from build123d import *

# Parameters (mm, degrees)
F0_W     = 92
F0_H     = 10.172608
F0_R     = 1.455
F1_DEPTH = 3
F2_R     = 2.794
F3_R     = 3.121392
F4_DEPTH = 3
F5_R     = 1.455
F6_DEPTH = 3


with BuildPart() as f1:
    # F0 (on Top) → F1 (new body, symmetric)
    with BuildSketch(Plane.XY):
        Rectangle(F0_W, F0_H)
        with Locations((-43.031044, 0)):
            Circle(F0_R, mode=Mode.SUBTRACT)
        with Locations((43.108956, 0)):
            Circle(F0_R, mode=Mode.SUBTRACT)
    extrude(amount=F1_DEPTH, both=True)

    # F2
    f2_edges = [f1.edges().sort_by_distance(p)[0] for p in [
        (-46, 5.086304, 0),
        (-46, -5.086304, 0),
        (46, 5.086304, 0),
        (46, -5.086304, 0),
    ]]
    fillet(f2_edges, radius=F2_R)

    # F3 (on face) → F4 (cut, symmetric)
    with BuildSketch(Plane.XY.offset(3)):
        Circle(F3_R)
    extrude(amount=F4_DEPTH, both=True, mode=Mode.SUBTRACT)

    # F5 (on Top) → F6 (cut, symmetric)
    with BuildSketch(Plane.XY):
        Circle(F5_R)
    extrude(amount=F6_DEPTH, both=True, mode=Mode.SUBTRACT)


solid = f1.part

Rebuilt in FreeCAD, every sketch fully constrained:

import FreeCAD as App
import Part
import Sketcher
Q = App.Units.Quantity


def edges_at(feature, points):
    """Names of the edges that pass closest to the given points."""
    edges = feature.Shape.Edges
    near = lambda p: min(range(len(edges)), key=lambda i: edges[i].distToShape(Part.Vertex(*p))[0])
    return sorted({f"Edge{near(p) + 1}" for p in points})

doc = App.newDocument("Part")
params = doc.addObject("Spreadsheet::Sheet", "Params")
for row, (alias, value) in enumerate([
    ("sketch1_diameter", "2.91 mm"),
    ("sketch1_width", "92 mm"),
    ("pad1_length", "6 mm"),
    ("fillet_radius", "2.794 mm"),
    ("pocket1_length", "6 mm"),
    ("sketch3_diameter", "2.91 mm"),
    ("pocket2_length", "6 mm"),
], start=1):
    params.set(f"A{row}", alias)
    params.set(f"B{row}", "=" + value)
    params.setAlias(f"B{row}", alias)

body = doc.addObject("PartDesign::Body", "Body")

# Sketch on XY plane
sketch1 = body.newObject("Sketcher::SketchObject", "Sketch")
sketch1.AttachmentSupport = (doc.getObject("XY_Plane"), [""])
sketch1.MapMode = "FlatFace"
sketch1.addGeometry([
    Part.LineSegment(App.Vector(-46, 5.1, 0), App.Vector(-46, -5.1, 0)),  # 0
    Part.LineSegment(App.Vector(-46, -5.1, 0), App.Vector(46, -5.1, 0)),  # 1
    Part.LineSegment(App.Vector(46, -5.1, 0), App.Vector(46, 5.1, 0)),  # 2
    Part.LineSegment(App.Vector(46, 5.1, 0), App.Vector(-46, 5.1, 0)),  # 3
    Part.Circle(App.Vector(-43, 0, 0), App.Vector(0, 0, 1), 1.5),  # 4
    Part.Circle(App.Vector(43.1, 0, 0), App.Vector(0, 0, 1), 1.5),  # 5
], False)
sketch1.addConstraint([
    Sketcher.Constraint("Coincident", 0, 2, 1, 1),
    Sketcher.Constraint("Coincident", 1, 2, 2, 1),
    Sketcher.Constraint("Coincident", 2, 2, 3, 1),
    Sketcher.Constraint("Coincident", 3, 2, 0, 1),
    Sketcher.Constraint("Vertical", 0),
    Sketcher.Constraint("Horizontal", 1),
    Sketcher.Constraint("Vertical", 2),
    Sketcher.Constraint("Horizontal", 3),
    Sketcher.Constraint("Equal", 4, 5),
    Sketcher.Constraint("Symmetric", 0, 2, 2, 2, -1, 1),
    Sketcher.Constraint("PointOnObject", 4, 3, -1),
    Sketcher.Constraint("PointOnObject", 5, 3, -1),
    Sketcher.Constraint("Diameter", 4, Q("2.91 mm")),
    Sketcher.Constraint("DistanceX", 1, 1, 1, 2, Q("92 mm")),
    Sketcher.Constraint("DistanceX", 4, 3, 5, 3, Q("86.14 mm")),
    Sketcher.Constraint("DistanceY", 0, 2, 0, 1, Q("10.172608 mm")),
    Sketcher.Constraint("DistanceX", 4, 3, -1, 1, Q("43.031044 mm")),
])
sketch1.setExpression("Constraints[12]", "Params.sketch1_diameter")
sketch1.setExpression("Constraints[13]", "Params.sketch1_width")
pad1 = body.newObject("PartDesign::Pad", "Pad")
pad1.Profile = sketch1
pad1.setExpression("Length", "Params.pad1_length")
pad1.Midplane = True
doc.recompute()

fillet = body.newObject("PartDesign::Fillet", "Fillet")
fillet.Base = (pad1, edges_at(pad1, [
    (-46, 5.086, 0),
    (-46, -5.086, 0),
    (46, 5.086, 0),
    (46, -5.086, 0),
]))
fillet.setExpression("Radius", "Params.fillet_radius")

# Sketch on XY plane
sketch2 = body.newObject("Sketcher::SketchObject", "Sketch001")
sketch2.AttachmentSupport = (doc.getObject("XY_Plane"), [""])
sketch2.MapMode = "FlatFace"
sketch2.AttachmentOffset = App.Placement(App.Vector(0, 0, 3), App.Rotation())
sketch2.addGeometry(Part.Circle(App.Vector(0, 0, 0), App.Vector(0, 0, 1), 3.1), False)
sketch2.addConstraint([
    Sketcher.Constraint("Coincident", 0, 3, -1, 1),
    Sketcher.Constraint("Diameter", 0, Q("6.242784 mm")),
])
pocket1 = body.newObject("PartDesign::Pocket", "Pocket")
pocket1.Profile = sketch2
pocket1.setExpression("Length", "Params.pocket1_length")
pocket1.Midplane = True

# Sketch on XY plane
sketch3 = body.newObject("Sketcher::SketchObject", "Sketch002")
sketch3.AttachmentSupport = (doc.getObject("XY_Plane"), [""])
sketch3.MapMode = "FlatFace"
sketch3.addGeometry(Part.Circle(App.Vector(0, 0, 0), App.Vector(0, 0, 1), 1.5), False)
sketch3.addConstraint([
    Sketcher.Constraint("Coincident", 0, 3, -1, 1),
    Sketcher.Constraint("Diameter", 0, Q("2.91 mm")),
])
sketch3.setExpression("Constraints[1]", "Params.sketch3_diameter")
pocket2 = body.newObject("PartDesign::Pocket", "Pocket001")
pocket2.Profile = sketch3
pocket2.setExpression("Length", "Params.pocket2_length")
pocket2.Midplane = True

doc.recompute()
